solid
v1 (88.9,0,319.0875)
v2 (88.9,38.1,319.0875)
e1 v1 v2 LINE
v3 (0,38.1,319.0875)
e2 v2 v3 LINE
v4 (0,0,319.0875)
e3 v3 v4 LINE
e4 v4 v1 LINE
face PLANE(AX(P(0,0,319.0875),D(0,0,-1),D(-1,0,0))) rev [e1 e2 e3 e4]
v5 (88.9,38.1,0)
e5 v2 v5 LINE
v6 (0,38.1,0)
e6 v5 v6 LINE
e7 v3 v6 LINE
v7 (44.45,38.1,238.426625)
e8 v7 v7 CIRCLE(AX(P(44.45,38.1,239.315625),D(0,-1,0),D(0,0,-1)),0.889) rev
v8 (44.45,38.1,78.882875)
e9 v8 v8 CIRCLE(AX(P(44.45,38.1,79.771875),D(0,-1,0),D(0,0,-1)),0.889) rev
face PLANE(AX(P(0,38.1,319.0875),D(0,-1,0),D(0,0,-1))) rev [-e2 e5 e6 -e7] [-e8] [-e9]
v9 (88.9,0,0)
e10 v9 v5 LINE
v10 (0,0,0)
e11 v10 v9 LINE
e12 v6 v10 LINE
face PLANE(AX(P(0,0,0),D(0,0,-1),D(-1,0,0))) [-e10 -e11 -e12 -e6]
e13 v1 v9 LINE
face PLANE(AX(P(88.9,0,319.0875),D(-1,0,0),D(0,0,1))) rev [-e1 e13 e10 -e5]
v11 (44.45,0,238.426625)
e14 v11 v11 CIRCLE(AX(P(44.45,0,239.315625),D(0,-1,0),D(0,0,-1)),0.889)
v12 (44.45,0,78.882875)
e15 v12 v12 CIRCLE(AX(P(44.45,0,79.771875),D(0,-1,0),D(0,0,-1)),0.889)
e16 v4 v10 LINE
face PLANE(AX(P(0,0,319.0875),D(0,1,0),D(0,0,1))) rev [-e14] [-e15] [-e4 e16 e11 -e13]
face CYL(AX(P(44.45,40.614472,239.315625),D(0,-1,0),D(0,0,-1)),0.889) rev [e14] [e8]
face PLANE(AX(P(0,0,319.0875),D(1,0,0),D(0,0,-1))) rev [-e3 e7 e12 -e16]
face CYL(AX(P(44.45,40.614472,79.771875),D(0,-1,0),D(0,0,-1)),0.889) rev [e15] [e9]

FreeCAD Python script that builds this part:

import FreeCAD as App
import Part
import Sketcher
Q = App.Units.Quantity

doc = App.newDocument("Part")
body = doc.addObject("PartDesign::Body", "Body")

sketch1 = body.newObject("Sketcher::SketchObject", "Sketch")
sketch1.AttachmentSupport = (doc.getObject("XY_Plane"), [""])
sketch1.MapMode = "FlatFace"
sketch1.addGeometry([
    Part.LineSegment(App.Vector(0, 38.1, 0), App.Vector(0, 0, 0)),
    Part.LineSegment(App.Vector(0, 0, 0), App.Vector(88.9, 0, 0)),
    Part.LineSegment(App.Vector(88.9, 0, 0), App.Vector(88.9, 38.1, 0)),
    Part.LineSegment(App.Vector(88.9, 38.1, 0), App.Vector(0, 38.1, 0)),
], False)
sketch1.addConstraint([
    Sketcher.Constraint("Coincident", 0, 2, 1, 1),
    Sketcher.Constraint("Coincident", 1, 2, 2, 1),
    Sketcher.Constraint("Coincident", 2, 2, 3, 1),
    Sketcher.Constraint("Coincident", 3, 2, 0, 1),
    Sketcher.Constraint("Vertical", 0),
    Sketcher.Constraint("Horizontal", 1),
    Sketcher.Constraint("Vertical", 2),
    Sketcher.Constraint("Horizontal", 3),
    Sketcher.Constraint("Coincident", 0, 2, -1, 1),
    Sketcher.Constraint("DistanceX", 1, 1, 1, 2, Q("3.5 in")),
    Sketcher.Constraint("DistanceY", 0, 2, 0, 1, Q("1.5 in")),
])
pad1 = body.newObject("PartDesign::Pad", "Pad")
pad1.Profile = sketch1
pad1.Length = Q("12.5625 in")

sketch2 = body.newObject("Sketcher::SketchObject", "Sketch001")
sketch2.AttachmentSupport = (doc.getObject("XZ_Plane"), [""])
sketch2.MapMode = "FlatFace"
sketch2.addGeometry([
    Part.Circle(App.Vector(44.45, 79.771875, 0), App.Vector(0, 0, 1), 0.889),
    Part.Circle(App.Vector(44.45, 239.315625, 0), App.Vector(0, 0, 1), 0.889),
], False)
sketch2.addConstraint([
    Sketcher.Constraint("Equal", 0, 1),
    Sketcher.Constraint("Vertical", 0, 3, 1, 3),
    Sketcher.Constraint("Diameter", 0, Q("0.07 in")),
    Sketcher.Constraint("DistanceX", -1, 1, 0, 3, Q("1.75 in")),
    Sketcher.Constraint("DistanceY", -1, 1, 0, 3, Q("3.140625 in")),
    Sketcher.Constraint("DistanceY", -1, 1, 1, 3, Q("9.421875 in")),
])
pocket1 = body.newObject("PartDesign::Pocket", "Pocket")
pocket1.Profile = sketch2
pocket1.Length = Q("1.5 in")

doc.recompute()
